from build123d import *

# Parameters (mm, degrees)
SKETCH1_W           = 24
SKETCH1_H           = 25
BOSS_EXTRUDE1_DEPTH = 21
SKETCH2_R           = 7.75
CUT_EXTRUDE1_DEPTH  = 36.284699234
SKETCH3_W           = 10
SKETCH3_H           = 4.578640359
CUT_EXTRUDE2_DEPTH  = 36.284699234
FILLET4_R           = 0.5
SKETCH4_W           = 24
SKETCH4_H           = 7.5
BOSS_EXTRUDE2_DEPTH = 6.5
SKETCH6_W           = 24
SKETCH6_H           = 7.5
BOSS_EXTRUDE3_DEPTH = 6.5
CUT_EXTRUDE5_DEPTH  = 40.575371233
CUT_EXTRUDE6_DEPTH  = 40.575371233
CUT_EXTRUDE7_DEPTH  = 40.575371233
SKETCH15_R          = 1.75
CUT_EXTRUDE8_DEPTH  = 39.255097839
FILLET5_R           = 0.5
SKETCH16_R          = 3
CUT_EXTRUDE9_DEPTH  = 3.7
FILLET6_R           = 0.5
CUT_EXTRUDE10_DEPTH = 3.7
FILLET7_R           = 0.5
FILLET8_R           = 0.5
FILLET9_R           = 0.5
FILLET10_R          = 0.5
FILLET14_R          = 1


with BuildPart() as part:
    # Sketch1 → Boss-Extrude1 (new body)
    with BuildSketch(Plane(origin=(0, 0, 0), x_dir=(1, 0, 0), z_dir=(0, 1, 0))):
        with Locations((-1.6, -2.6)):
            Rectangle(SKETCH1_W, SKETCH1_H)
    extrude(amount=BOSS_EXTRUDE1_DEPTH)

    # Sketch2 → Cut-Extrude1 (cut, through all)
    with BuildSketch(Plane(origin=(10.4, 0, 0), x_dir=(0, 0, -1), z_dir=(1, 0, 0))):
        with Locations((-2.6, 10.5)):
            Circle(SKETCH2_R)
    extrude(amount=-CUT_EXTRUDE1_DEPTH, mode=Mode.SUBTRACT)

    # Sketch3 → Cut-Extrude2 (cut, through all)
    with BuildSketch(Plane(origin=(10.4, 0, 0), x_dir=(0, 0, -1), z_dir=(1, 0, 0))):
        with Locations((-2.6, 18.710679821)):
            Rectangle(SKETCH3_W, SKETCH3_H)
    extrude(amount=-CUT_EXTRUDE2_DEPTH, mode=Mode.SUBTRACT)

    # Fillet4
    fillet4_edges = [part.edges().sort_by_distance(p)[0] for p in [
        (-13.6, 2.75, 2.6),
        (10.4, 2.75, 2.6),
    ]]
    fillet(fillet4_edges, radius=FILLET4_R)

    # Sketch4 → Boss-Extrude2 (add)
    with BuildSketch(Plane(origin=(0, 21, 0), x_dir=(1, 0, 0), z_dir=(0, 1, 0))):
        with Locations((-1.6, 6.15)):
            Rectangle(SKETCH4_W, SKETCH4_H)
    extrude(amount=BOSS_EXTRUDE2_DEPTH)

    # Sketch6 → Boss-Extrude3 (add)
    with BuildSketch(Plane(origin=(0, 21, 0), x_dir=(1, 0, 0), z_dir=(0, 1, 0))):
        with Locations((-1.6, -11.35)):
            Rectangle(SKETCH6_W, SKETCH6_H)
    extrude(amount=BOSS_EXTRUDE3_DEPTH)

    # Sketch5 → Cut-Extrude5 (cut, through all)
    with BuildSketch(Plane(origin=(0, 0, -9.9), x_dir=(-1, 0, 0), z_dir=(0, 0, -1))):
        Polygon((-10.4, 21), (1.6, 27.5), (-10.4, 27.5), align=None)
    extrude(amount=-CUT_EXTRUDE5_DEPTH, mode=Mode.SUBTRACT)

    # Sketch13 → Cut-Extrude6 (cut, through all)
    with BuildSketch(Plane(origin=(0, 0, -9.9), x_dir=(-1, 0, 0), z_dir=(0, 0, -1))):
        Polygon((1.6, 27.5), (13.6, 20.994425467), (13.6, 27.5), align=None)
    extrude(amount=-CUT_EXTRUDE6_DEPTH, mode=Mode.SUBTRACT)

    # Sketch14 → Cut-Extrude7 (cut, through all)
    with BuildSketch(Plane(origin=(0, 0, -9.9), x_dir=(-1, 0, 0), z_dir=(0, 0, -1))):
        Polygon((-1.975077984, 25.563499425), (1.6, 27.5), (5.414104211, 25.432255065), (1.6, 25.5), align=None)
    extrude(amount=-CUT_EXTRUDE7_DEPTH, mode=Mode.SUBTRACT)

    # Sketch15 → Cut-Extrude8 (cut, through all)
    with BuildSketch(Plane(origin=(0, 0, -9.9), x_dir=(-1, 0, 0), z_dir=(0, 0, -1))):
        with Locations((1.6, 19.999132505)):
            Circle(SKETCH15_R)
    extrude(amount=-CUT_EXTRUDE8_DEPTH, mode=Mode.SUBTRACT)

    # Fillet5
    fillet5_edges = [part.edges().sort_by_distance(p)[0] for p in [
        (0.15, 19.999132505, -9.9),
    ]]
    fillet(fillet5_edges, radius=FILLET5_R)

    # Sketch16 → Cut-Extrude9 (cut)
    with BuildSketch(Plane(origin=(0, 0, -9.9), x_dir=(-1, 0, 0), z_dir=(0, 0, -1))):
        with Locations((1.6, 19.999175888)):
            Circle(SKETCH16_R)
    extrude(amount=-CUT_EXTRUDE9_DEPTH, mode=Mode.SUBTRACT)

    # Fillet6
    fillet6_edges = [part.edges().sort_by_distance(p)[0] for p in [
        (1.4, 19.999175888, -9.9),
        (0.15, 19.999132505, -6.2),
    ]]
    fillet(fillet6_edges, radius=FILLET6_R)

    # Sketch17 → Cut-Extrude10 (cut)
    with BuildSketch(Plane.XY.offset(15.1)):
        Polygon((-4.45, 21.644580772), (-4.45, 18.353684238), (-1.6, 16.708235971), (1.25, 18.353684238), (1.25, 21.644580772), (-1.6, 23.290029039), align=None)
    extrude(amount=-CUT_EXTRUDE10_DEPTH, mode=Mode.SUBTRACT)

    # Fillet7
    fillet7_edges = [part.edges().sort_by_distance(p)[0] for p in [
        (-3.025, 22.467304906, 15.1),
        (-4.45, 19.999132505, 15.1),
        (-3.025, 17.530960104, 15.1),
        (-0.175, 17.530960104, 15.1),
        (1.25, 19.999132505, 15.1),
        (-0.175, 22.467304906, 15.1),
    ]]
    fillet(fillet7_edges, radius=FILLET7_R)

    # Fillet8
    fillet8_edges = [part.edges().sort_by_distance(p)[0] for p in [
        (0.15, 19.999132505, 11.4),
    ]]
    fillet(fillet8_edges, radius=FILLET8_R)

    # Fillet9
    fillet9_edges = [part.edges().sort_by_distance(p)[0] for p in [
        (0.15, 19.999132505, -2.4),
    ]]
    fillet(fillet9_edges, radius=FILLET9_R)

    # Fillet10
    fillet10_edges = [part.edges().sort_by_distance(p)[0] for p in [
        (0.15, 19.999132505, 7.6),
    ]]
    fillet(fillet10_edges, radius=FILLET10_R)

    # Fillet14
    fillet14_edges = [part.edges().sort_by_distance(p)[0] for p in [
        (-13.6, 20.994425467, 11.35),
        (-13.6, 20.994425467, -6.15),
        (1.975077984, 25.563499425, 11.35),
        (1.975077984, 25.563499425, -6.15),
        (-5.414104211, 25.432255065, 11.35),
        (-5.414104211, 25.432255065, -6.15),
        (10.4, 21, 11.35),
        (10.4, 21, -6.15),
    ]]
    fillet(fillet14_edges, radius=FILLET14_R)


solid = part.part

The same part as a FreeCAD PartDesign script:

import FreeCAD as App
import Part
import Sketcher
Q = App.Units.Quantity


def edges_at(feature, points):
    """Names of the edges that pass closest to the given points."""
    edges = feature.Shape.Edges
    near = lambda p: min(range(len(edges)), key=lambda i: edges[i].distToShape(Part.Vertex(*p))[0])
    return sorted({f"Edge{near(p) + 1}" for p in points})


def add_polygon(sketch, points):
    """Adds a closed chain of lines whose ends are joined by coincident constraints."""
    first, n = sketch.GeometryCount, len(points)
    for a, b in zip(points, points[1:] + points[:1]):
        sketch.addGeometry(Part.LineSegment(App.Vector(*a, 0), App.Vector(*b, 0)), False)
    for i in range(n):
        sketch.addConstraint(Sketcher.Constraint("Coincident", first + i, 2, first + (i + 1) % n, 1))

doc = App.newDocument("Part")
body = doc.addObject("PartDesign::Body", "Body")

# Sketch on XZ plane
sketch1 = doc.addObject("Sketcher::SketchObject", "Sketch")
body.addObject(sketch1)
sketch1.AttachmentSupport = (doc.XZ_Plane, [""])
sketch1.MapMode = "FlatFace"
add_polygon(sketch1, [(-14, -10), (-14, 15), (10, 15), (10, -10)])  # lines 0-3
sketch1.addConstraint([
    Sketcher.Constraint("Vertical", 0),
    Sketcher.Constraint("Horizontal", 1),
    Sketcher.Constraint("Vertical", 2),
    Sketcher.Constraint("Horizontal", 3),
    Sketcher.Constraint("DistanceX", 1, 1, 1, 2, 24.0),
    Sketcher.Constraint("DistanceY", 0, 1, 0, 2, 25.0),
    Sketcher.Constraint("DistanceX", 0, 2, -1, 1, 13.6),
    Sketcher.Constraint("DistanceY", -1, 1, 0, 2, 15.1),
])
pad1 = doc.addObject("PartDesign::Pad", "Pad")
body.addObject(pad1)
pad1.Profile = sketch1
pad1.Length = 21
pad1.Reversed = True

# Sketch on YZ plane
sketch2 = doc.addObject("Sketcher::SketchObject", "Sketch001")
body.addObject(sketch2)
sketch2.AttachmentSupport = (doc.YZ_Plane, [""])
sketch2.MapMode = "FlatFace"
sketch2.AttachmentOffset = App.Placement(App.Vector(0, 0, 10.4), App.Rotation())
sketch2.addGeometry(Part.Circle(App.Vector(10, 3, 0), App.Vector(0, 0, 1), 8), False)
sketch2.addConstraint([
    Sketcher.Constraint("Diameter", 0, 15.5),
    Sketcher.Constraint("DistanceX", -1, 1, 0, 3, 10.5),
    Sketcher.Constraint("DistanceY", -1, 1, 0, 3, 2.6),
])
pocket1 = doc.addObject("PartDesign::Pocket", "Pocket")
body.addObject(pocket1)
pocket1.Profile = sketch2
pocket1.Type = "ThroughAll"

# Sketch on YZ plane
sketch3 = doc.addObject("Sketcher::SketchObject", "Sketch002")
body.addObject(sketch3)
sketch3.AttachmentSupport = (doc.YZ_Plane, [""])
sketch3.MapMode = "FlatFace"
sketch3.AttachmentOffset = App.Placement(App.Vector(0, 0, 10.4), App.Rotation())
add_polygon(sketch3, [(21, 7.6), (16.4, 7.6), (16.4, -2.4), (21, -2.4)])  # lines 0-3
sketch3.addConstraint([
    Sketcher.Constraint("Horizontal", 0),
    Sketcher.Constraint("Vertical", 1),
    Sketcher.Constraint("Horizontal", 2),
    Sketcher.Constraint("Vertical", 3),
    Sketcher.Constraint("DistanceY", 1, 2, 1, 1, 10.0),
    Sketcher.Constraint("DistanceX", -1, 1, 2, 2, 21.0),
    Sketcher.Constraint("DistanceY", -1, 1, 0, 2, 7.6),
    Sketcher.Constraint("DistanceX", 0, 2, 0, 1, 4.57864),
])
pocket2 = doc.addObject("PartDesign::Pocket", "Pocket001")
body.addObject(pocket2)
pocket2.Profile = sketch3
pocket2.Type = "ThroughAll"
doc.recompute()

fillet = doc.addObject("PartDesign::Fillet", "Fillet")
body.addObject(fillet)
fillet.Base = (pocket2, edges_at(pocket2, [(-13.6, 2.75, 2.6), (10.4, 2.75, 2.6)]))
fillet.Radius = 0.5

# Sketch on XZ plane
sketch4 = doc.addObject("Sketcher::SketchObject", "Sketch003")
body.addObject(sketch4)
sketch4.AttachmentSupport = (doc.XZ_Plane, [""])
sketch4.MapMode = "FlatFace"
sketch4.AttachmentOffset = App.Placement(App.Vector(0, 0, -21), App.Rotation())
add_polygon(sketch4, [(-14, -10), (-14, -2), (10, -2), (10, -10)])  # lines 0-3
sketch4.addConstraint([
    Sketcher.Constraint("Vertical", 0),
    Sketcher.Constraint("Horizontal", 1),
    Sketcher.Constraint("Vertical", 2),
    Sketcher.Constraint("Horizontal", 3),
    Sketcher.Constraint("DistanceX", 1, 1, 1, 2, 24.0),
    Sketcher.Constraint("DistanceY", 0, 1, 0, 2, 7.5),
    Sketcher.Constraint("DistanceX", 0, 2, -1, 1, 13.6),
    Sketcher.Constraint("DistanceY", 0, 2, -1, 1, 2.4),
])
pad2 = doc.addObject("PartDesign::Pad", "Pad001")
body.addObject(pad2)
pad2.Profile = sketch4
pad2.Length = 6.5
pad2.Reversed = True

# Sketch on XZ plane
sketch5 = doc.addObject("Sketcher::SketchObject", "Sketch004")
body.addObject(sketch5)
sketch5.AttachmentSupport = (doc.XZ_Plane, [""])
sketch5.MapMode = "FlatFace"
sketch5.AttachmentOffset = App.Placement(App.Vector(0, 0, -21), App.Rotation())
add_polygon(sketch5, [(-14, 8), (-14, 15), (10, 15), (10, 8)])  # lines 0-3
sketch5.addConstraint([
    Sketcher.Constraint("Vertical", 0),
    Sketcher.Constraint("Horizontal", 1),
    Sketcher.Constraint("Vertical", 2),
    Sketcher.Constraint("Horizontal", 3),
    Sketcher.Constraint("DistanceX", 1, 1, 1, 2, 24.0),
    Sketcher.Constraint("DistanceY", 0, 1, 0, 2, 7.5),
    Sketcher.Constraint("DistanceX", 0, 2, -1, 1, 13.6),
    Sketcher.Constraint("DistanceY", -1, 1, 0, 2, 15.1),
])
pad3 = doc.addObject("PartDesign::Pad", "Pad002")
body.addObject(pad3)
pad3.Profile = sketch5
pad3.Length = 6.5
pad3.Reversed = True

# Sketch on XY plane
sketch6 = doc.addObject("Sketcher::SketchObject", "Sketch005")
body.addObject(sketch6)
sketch6.AttachmentSupport = (doc.XY_Plane, [""])
sketch6.MapMode = "FlatFace"
sketch6.AttachmentOffset = App.Placement(App.Vector(0, 0, -9.9), App.Rotation())
add_polygon(sketch6, [(10, 21), (-2, 28), (10, 28)])  # lines 0-2
sketch6.addConstraint([
    Sketcher.Constraint("Horizontal", 1),
    Sketcher.Constraint("Vertical", 2),
    Sketcher.Constraint("DistanceX", 1, 1, 1, 2, 12.0),
    Sketcher.Constraint("DistanceY", 2, 2, 2, 1, 6.5),
    Sketcher.Constraint("DistanceY", -1, 1, 2, 2, 21.0),
    Sketcher.Constraint("DistanceX", 0, 2, -1, 1, 1.6),
])
pocket3 = doc.addObject("PartDesign::Pocket", "Pocket002")
body.addObject(pocket3)
pocket3.Profile = sketch6
pocket3.Type = "ThroughAll"
pocket3.Reversed = True

# Sketch on XY plane
sketch7 = doc.addObject("Sketcher::SketchObject", "Sketch006")
body.addObject(sketch7)
sketch7.AttachmentSupport = (doc.XY_Plane, [""])
sketch7.MapMode = "FlatFace"
sketch7.AttachmentOffset = App.Placement(App.Vector(0, 0, -9.9), App.Rotation())
add_polygon(sketch7, [(-2, 28), (-14, 21), (-14, 28)])  # lines 0-2
sketch7.addConstraint([
    Sketcher.Constraint("Vertical", 1),
    Sketcher.Constraint("Horizontal", 2),
    Sketcher.Constraint("DistanceX", 2, 1, 2, 2, 12.0),
    Sketcher.Constraint("DistanceX", 0, 2, -1, 1, 13.6),
    Sketcher.Constraint("DistanceY", -1, 1, 1, 2, 27.5),
    Sketcher.Constraint("Distance", 0, 13.65),
])
pocket4 = doc.addObject("PartDesign::Pocket", "Pocket003")
body.addObject(pocket4)
pocket4.Profile = sketch7
pocket4.Type = "ThroughAll"
pocket4.Reversed = True

# Sketch on XY plane
sketch8 = doc.addObject("Sketcher::SketchObject", "Sketch007")
body.addObject(sketch8)
sketch8.AttachmentSupport = (doc.XY_Plane, [""])
sketch8.MapMode = "FlatFace"
sketch8.AttachmentOffset = App.Placement(App.Vector(0, 0, -9.9), App.Rotation())
add_polygon(sketch8, [(-1.6, 27.5), (2, 25.6), (-1.6, 25.5), (-5.4, 25.4)])  # lines 0-3
sketch8.addConstraint([
    Sketcher.Constraint("Parallel", 1, 2),
    Sketcher.Constraint("Vertical", 1, 2, 3, 2),
    Sketcher.Constraint("DistanceY", 1, 2, 3, 2, 2.0),
    Sketcher.Constraint("DistanceX", 1, 2, -1, 1, 1.6),
    Sketcher.Constraint("DistanceY", -1, 1, 1, 2, 25.5),
    Sketcher.Constraint("DistanceY", -1, 1, 0, 2, 25.563499),
    Sketcher.Constraint("Distance", 0, 4.06586),
    Sketcher.Constraint("Distance", 2, 3.814706),
])
pocket5 = doc.addObject("PartDesign::Pocket", "Pocket004")
body.addObject(pocket5)
pocket5.Profile = sketch8
pocket5.Type = "ThroughAll"
pocket5.Reversed = True

# Sketch on XY plane
sketch9 = doc.addObject("Sketcher::SketchObject", "Sketch008")
body.addObject(sketch9)
sketch9.AttachmentSupport = (doc.XY_Plane, [""])
sketch9.MapMode = "FlatFace"
sketch9.AttachmentOffset = App.Placement(App.Vector(0, 0, -9.9), App.Rotation())
sketch9.addGeometry(Part.Circle(App.Vector(-1.6, 20, 0), App.Vector(0, 0, 1), 1.8), False)
sketch9.addConstraint([
    Sketcher.Constraint("Diameter", 0, 3.5),
    Sketcher.Constraint("DistanceX", 0, 3, -1, 1, 1.6),
    Sketcher.Constraint("DistanceY", -1, 1, 0, 3, 19.999133),
])
pocket6 = doc.addObject("PartDesign::Pocket", "Pocket005")
body.addObject(pocket6)
pocket6.Profile = sketch9
pocket6.Type = "ThroughAll"
pocket6.Reversed = True
doc.recompute()

fillet2 = doc.addObject("PartDesign::Fillet", "Fillet001")
body.addObject(fillet2)
fillet2.Base = (pocket6, edges_at(pocket6, [(0.15, 19.999, -9.9)]))
fillet2.Radius = 0.5

# Sketch on XY plane
sketch10 = doc.addObject("Sketcher::SketchObject", "Sketch009")
body.addObject(sketch10)
sketch10.AttachmentSupport = (doc.XY_Plane, [""])
sketch10.MapMode = "FlatFace"
sketch10.AttachmentOffset = App.Placement(App.Vector(0, 0, -9.9), App.Rotation())
sketch10.addGeometry(Part.Circle(App.Vector(-1.6, 20, 0), App.Vector(0, 0, 1), 3), False)
sketch10.addConstraint([
    Sketcher.Constraint("Diameter", 0, 6.0),
    Sketcher.Constraint("DistanceX", 0, 3, -1, 1, 1.6),
    Sketcher.Constraint("DistanceY", -1, 1, 0, 3, 19.999176),
])
pocket7 = doc.addObject("PartDesign::Pocket", "Pocket006")
body.addObject(pocket7)
pocket7.Profile = sketch10
pocket7.Length = 3.7
pocket7.Reversed = True
doc.recompute()

fillet3 = doc.addObject("PartDesign::Fillet", "Fillet002")
body.addObject(fillet3)
fillet3.Base = (pocket7, edges_at(pocket7, [(1.4, 19.999, -9.9), (0.15, 19.999, -6.2)]))
fillet3.Radius = 0.5

# Sketch on XY plane
sketch11 = doc.addObject("Sketcher::SketchObject", "Sketch010")
body.addObject(sketch11)
sketch11.AttachmentSupport = (doc.XY_Plane, [""])
sketch11.MapMode = "FlatFace"
sketch11.AttachmentOffset = App.Placement(App.Vector(0, 0, 15.1), App.Rotation())
add_polygon(sketch11, [(-4.5, 21.6), (-4.5, 18.4), (-1.6, 16.7), (1.2, 18.4), (1.2, 21.6), (-1.6, 23.3)])  # lines 0-5
sketch11.addConstraint([
    Sketcher.Constraint("Vertical", 0),
    Sketcher.Constraint("Vertical", 3),
    Sketcher.Constraint("Parallel", 1, 4),
    Sketcher.Constraint("Parallel", 2, 5),
    Sketcher.Constraint("Horizontal", 0, 2, 2, 2),
    Sketcher.Constraint("Horizontal", 3, 2, 5, 2),
    Sketcher.Constraint("Vertical", 1, 2, 4, 2),
    Sketcher.Constraint("Angle", 1, Q("-30 deg")),
    Sketcher.Constraint("DistanceX", 1, 2, -1, 1, 1.6),
    Sketcher.Constraint("DistanceX", 0, 2, 2, 2, 5.7),
    Sketcher.Constraint("DistanceY", 0, 2, 0, 1, 3.290897),
    Sketcher.Constraint("DistanceY", -1, 1, 3, 2, 21.644581),
])
pocket8 = doc.addObject("PartDesign::Pocket", "Pocket007")
body.addObject(pocket8)
pocket8.Profile = sketch11
pocket8.Length = 3.7
doc.recompute()

fillet4 = doc.addObject("PartDesign::Fillet", "Fillet003")
body.addObject(fillet4)
fillet4.Base = (pocket8, edges_at(pocket8, [
    (-3.025, 22.467, 15.1),
    (-4.45, 19.999, 15.1),
    (-3.025, 17.531, 15.1),
    (-0.175, 17.531, 15.1),
    (1.25, 19.999, 15.1),
    (-0.175, 22.467, 15.1),
]))
fillet4.Radius = 0.5
doc.recompute()

fillet5 = doc.addObject("PartDesign::Fillet", "Fillet004")
body.addObject(fillet5)
fillet5.Base = (fillet4, edges_at(fillet4, [(0.15, 19.999, 11.4)]))
fillet5.Radius = 0.5
doc.recompute()

fillet6 = doc.addObject("PartDesign::Fillet", "Fillet005")
body.addObject(fillet6)
fillet6.Base = (fillet5, edges_at(fillet5, [(0.15, 19.999, -2.4)]))
fillet6.Radius = 0.5
doc.recompute()

fillet7 = doc.addObject("PartDesign::Fillet", "Fillet006")
body.addObject(fillet7)
fillet7.Base = (fillet6, edges_at(fillet6, [(0.15, 19.999, 7.6)]))
fillet7.Radius = 0.5
doc.recompute()

fillet8 = doc.addObject("PartDesign::Fillet", "Fillet007")
body.addObject(fillet8)
fillet8.Base = (fillet7, edges_at(fillet7, [
    (-13.6, 20.994, 11.35),
    (-13.6, 20.994, -6.15),
    (1.975, 25.563, 11.35),
    (1.975, 25.563, -6.15),
    (-5.414, 25.432, 11.35),
    (-5.414, 25.432, -6.15),
    (10.4, 21, 11.35),
    (10.4, 21, -6.15),
]))
fillet8.Radius = 1

doc.recompute()
